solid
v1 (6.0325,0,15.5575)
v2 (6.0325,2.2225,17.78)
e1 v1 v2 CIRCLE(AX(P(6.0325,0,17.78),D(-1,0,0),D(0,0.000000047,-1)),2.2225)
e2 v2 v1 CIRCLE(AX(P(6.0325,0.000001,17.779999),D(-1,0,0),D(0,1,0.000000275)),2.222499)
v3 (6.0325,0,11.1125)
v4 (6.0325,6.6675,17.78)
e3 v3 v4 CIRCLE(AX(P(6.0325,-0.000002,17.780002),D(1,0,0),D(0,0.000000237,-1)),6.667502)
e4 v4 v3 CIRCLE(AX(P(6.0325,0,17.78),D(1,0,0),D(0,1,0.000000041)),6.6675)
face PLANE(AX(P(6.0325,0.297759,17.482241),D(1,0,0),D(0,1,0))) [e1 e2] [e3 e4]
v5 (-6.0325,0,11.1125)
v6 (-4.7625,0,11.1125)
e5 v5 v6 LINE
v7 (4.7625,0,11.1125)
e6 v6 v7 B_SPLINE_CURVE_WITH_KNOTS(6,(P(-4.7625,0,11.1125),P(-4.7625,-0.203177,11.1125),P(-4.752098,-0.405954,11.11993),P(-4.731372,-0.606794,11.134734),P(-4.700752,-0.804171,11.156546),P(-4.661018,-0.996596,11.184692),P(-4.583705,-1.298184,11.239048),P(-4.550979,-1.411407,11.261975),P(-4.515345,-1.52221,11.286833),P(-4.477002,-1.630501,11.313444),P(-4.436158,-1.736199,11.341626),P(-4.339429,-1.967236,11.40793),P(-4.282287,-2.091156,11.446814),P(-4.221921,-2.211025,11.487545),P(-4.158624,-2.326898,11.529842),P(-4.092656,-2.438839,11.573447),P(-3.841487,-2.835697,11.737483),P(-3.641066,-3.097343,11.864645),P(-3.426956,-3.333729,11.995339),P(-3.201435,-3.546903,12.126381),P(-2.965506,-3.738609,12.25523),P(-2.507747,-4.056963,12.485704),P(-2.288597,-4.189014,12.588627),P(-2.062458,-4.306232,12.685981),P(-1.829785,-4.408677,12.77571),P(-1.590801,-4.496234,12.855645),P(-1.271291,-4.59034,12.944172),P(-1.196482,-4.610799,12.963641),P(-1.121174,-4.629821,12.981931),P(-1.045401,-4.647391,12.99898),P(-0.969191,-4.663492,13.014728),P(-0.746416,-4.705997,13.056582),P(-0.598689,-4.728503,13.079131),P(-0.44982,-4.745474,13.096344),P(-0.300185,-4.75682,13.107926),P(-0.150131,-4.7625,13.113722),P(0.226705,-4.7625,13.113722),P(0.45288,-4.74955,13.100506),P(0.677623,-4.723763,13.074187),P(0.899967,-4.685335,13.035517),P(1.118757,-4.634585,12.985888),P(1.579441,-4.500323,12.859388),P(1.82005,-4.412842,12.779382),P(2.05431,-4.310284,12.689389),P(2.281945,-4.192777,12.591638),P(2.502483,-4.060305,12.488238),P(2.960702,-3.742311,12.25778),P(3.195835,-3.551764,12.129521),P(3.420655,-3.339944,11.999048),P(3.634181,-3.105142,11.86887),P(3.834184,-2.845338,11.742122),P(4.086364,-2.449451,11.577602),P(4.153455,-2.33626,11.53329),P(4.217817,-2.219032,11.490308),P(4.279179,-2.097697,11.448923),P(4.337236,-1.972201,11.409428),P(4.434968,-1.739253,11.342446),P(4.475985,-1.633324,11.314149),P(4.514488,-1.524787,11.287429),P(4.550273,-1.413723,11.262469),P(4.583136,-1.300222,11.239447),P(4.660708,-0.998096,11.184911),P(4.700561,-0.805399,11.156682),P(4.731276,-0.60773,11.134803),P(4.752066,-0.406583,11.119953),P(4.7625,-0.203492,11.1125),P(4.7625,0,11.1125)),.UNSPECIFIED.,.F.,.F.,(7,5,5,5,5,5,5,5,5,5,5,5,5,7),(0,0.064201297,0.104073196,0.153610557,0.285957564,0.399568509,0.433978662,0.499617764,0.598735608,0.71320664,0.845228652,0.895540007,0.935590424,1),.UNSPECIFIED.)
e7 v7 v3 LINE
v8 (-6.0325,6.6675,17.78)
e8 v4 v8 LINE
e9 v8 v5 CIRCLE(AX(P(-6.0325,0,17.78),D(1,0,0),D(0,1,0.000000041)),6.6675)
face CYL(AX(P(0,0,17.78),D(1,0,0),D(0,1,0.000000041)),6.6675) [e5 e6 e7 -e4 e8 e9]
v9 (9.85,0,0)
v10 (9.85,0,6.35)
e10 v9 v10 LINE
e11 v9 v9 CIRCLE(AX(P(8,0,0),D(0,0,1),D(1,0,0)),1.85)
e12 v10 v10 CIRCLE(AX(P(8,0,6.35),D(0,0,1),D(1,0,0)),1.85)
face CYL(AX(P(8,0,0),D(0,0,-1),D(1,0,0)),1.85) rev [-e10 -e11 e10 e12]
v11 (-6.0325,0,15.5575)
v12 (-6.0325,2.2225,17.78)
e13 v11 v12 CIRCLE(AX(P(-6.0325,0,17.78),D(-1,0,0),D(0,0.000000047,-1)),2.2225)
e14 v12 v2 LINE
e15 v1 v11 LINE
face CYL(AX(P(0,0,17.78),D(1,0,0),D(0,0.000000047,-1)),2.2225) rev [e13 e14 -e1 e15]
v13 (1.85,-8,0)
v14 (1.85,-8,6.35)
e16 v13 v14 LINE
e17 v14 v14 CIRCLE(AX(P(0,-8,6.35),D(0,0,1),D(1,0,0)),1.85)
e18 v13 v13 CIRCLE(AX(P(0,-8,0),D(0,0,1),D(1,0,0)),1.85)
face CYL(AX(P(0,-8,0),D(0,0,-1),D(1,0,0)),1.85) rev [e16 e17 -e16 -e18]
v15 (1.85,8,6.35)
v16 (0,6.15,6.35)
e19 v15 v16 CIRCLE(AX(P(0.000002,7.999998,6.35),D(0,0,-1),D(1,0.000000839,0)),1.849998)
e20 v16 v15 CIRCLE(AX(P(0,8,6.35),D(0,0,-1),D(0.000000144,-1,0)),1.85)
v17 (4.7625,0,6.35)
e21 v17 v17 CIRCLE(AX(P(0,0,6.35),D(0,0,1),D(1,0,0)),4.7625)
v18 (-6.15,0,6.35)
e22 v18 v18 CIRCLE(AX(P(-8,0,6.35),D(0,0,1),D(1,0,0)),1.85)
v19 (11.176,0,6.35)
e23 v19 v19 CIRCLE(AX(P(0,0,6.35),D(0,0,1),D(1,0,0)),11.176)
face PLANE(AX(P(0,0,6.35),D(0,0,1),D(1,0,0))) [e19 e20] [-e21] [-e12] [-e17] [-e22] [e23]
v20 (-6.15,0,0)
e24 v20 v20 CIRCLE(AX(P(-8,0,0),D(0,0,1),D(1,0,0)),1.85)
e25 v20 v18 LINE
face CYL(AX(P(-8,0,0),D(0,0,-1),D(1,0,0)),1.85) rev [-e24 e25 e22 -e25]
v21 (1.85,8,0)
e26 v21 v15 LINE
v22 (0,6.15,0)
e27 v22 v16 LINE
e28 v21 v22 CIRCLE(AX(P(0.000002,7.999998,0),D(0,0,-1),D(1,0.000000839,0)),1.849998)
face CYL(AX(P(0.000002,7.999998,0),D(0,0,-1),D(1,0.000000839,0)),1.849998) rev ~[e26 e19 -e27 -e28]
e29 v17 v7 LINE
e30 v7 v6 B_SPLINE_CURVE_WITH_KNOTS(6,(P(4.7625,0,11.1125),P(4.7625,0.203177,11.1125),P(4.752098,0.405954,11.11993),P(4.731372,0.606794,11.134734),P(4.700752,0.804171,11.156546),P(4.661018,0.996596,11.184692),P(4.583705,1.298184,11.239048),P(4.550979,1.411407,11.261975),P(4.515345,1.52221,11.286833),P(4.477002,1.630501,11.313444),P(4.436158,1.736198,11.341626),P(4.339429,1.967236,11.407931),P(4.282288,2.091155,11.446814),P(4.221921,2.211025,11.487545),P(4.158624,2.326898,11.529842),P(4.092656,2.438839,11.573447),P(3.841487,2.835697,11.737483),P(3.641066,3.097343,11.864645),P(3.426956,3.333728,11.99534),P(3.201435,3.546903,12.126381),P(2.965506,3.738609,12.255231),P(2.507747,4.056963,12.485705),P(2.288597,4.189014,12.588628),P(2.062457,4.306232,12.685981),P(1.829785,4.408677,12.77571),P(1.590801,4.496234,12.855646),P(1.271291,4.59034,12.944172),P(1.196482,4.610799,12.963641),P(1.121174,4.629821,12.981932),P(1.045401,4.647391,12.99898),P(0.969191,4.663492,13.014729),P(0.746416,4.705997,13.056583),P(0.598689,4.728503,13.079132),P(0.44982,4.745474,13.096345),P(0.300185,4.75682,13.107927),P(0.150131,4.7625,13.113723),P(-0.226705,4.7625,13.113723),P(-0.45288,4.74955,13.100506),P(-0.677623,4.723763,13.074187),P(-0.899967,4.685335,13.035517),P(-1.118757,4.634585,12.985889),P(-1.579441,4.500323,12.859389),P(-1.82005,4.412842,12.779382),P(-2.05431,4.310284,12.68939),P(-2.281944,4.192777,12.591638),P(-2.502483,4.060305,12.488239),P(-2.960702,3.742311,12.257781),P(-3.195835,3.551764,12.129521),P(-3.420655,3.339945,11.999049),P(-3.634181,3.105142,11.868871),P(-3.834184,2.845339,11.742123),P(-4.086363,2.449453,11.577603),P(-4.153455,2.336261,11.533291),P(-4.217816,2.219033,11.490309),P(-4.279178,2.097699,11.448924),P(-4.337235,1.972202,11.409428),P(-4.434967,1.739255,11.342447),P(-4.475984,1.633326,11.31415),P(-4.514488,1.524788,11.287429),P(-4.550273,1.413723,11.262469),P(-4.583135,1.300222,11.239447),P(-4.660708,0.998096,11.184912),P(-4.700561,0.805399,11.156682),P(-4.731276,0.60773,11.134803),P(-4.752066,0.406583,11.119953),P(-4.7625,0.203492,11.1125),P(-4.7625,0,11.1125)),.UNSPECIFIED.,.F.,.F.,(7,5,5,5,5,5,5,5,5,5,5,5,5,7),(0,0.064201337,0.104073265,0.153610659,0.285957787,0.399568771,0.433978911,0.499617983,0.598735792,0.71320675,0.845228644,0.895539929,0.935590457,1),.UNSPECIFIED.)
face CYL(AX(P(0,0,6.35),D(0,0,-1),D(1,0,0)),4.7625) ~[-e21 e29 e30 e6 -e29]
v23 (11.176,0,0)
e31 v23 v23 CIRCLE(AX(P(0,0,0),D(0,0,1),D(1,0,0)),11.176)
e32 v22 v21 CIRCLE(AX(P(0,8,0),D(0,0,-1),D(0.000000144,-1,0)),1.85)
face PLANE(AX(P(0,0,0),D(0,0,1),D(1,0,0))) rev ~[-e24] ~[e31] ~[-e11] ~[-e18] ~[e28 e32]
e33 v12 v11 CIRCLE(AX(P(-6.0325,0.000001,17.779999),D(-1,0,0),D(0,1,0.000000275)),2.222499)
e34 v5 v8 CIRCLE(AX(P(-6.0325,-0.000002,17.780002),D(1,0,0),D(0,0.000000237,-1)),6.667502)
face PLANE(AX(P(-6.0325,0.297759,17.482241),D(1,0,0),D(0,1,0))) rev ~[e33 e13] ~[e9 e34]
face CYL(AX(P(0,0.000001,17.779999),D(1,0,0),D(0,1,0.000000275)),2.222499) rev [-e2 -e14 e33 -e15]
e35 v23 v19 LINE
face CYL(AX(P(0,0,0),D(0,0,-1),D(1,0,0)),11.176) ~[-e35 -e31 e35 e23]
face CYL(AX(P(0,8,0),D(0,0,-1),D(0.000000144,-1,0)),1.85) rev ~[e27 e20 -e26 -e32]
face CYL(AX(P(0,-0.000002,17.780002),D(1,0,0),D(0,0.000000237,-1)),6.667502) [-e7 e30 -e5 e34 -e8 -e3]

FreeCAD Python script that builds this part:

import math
import FreeCAD as App
import Part
import Sketcher
from FreeCAD import Vector
Q = App.Units.Quantity

doc = App.newDocument("Part")
body = doc.addObject("PartDesign::Body", "Body")

sketch1 = body.newObject("Sketcher::SketchObject", "Sketch")
sketch1.AttachmentSupport = (doc.getObject("XY_Plane"), [""])
sketch1.MapMode = "FlatFace"
sketch1.addGeometry(Part.Circle(Vector(0, 0, 0), Vector(0, 0, 1), 11.2), False)
sketch1.addGeometry(Part.Circle(Vector(-8, 0, 0), Vector(0, 0, 1), 1.9), False)
sketch1.addGeometry(Part.Circle(Vector(0, -8, 0), Vector(0, 0, 1), 1.9), False)
sketch1.addGeometry(Part.Circle(Vector(8, 0, 0), Vector(0, 0, 1), 1.9), False)
sketch1.addGeometry(Part.ArcOfCircle(Part.Circle(Vector(0, 8, 0), Vector(0, 0, 1), 1.8), math.radians(-90), math.radians(0)), False)
sketch1.addGeometry(Part.ArcOfCircle(Part.Circle(Vector(0, 8, 0), Vector(0, 0, 1), 1.9), math.radians(0), math.radians(270)), False)
sketch1.addConstraint(Sketcher.Constraint("Tangent", 4, 1, 5, 2))
sketch1.addConstraint(Sketcher.Constraint("Coincident", 5, 1, 4, 2))
sketch1.addConstraint(Sketcher.Constraint("Coincident", 0, 3, -1, 1))
sketch1.addConstraint(Sketcher.Constraint("Equal", 1, 2))
sketch1.addConstraint(Sketcher.Constraint("Equal", 2, 3))
sketch1.addConstraint(Sketcher.Constraint("Equal", 3, 4))
sketch1.addConstraint(Sketcher.Constraint("Symmetric", 1, 3, 3, 3, -1, 1))
sketch1.addConstraint(Sketcher.Constraint("Symmetric", 2, 3, 4, 3, -1, 1))
sketch1.addConstraint(Sketcher.Constraint("PointOnObject", 1, 3, -1))
sketch1.addConstraint(Sketcher.Constraint("PointOnObject", 2, 3, -2))
sketch1.addConstraint(Sketcher.Constraint("PointOnObject", 4, 1, -2))
sketch1.addConstraint(Sketcher.Constraint("Horizontal", 4, 3, 5, 1))
sketch1.addConstraint(Sketcher.Constraint("Diameter", 0, Q("0.88 in")))
sketch1.addConstraint(Sketcher.Constraint("Diameter", 1, 3.7))
sketch1.addConstraint(Sketcher.Constraint("DistanceX", 1, 3, -1, 1, 8.0))
sketch1.addConstraint(Sketcher.Constraint("DistanceY", 2, 3, -1, 1, 8.0))
pad1 = body.newObject("PartDesign::Pad", "Pad")
pad1.Profile = sketch1
pad1.Length = Q("0.25 in")

sketch2 = body.newObject("Sketcher::SketchObject", "Sketch001")
sketch2.AttachmentSupport = (doc.getObject("XY_Plane"), [""])
sketch2.MapMode = "FlatFace"
sketch2.AttachmentOffset = App.Placement(Vector(0, 0, 0.25 * 25.4), App.Rotation())
sketch2.addGeometry(Part.Circle(Vector(0, 0, 0), Vector(0, 0, 1), 4.8), False)
sketch2.addConstraint(Sketcher.Constraint("Coincident", 0, 3, -1, 1))
sketch2.addConstraint(Sketcher.Constraint("Diameter", 0, Q("0.375 in")))
pad2 = body.newObject("PartDesign::Pad", "Pad001")
pad2.Profile = sketch2
pad2.Length = Q("0.325 in")

sketch3 = body.newObject("Sketcher::SketchObject", "Sketch002")
sketch3.AttachmentSupport = (doc.getObject("YZ_Plane"), [""])
sketch3.MapMode = "FlatFace"
sketch3.addGeometry(Part.ArcOfCircle(Part.Circle(Vector(0, 17.8, 0), Vector(0, 0, 1), 6.7), math.radians(0), math.radians(270)), False)
sketch3.addGeometry(Part.ArcOfCircle(Part.Circle(Vector(0, 17.8, 0), Vector(0, 0, 1), 6.7), math.radians(-90), math.radians(0)), False)
sketch3.addGeometry(Part.ArcOfCircle(Part.Circle(Vector(0, 17.8, 0), Vector(0, 0, 1), 2.2), math.radians(0), math.radians(270)), False)
sketch3.addGeometry(Part.ArcOfCircle(Part.Circle(Vector(0, 17.8, 0), Vector(0, 0, 1), 2.2), math.radians(-90), math.radians(0)), False)
sketch3.addConstraint(Sketcher.Constraint("Tangent", 0, 1, 1, 2))
sketch3.addConstraint(Sketcher.Constraint("Coincident", 1, 1, 0, 2))
sketch3.addConstraint(Sketcher.Constraint("Tangent", 2, 1, 3, 2))
sketch3.addConstraint(Sketcher.Constraint("Coincident", 3, 1, 2, 2))
sketch3.addConstraint(Sketcher.Constraint("Coincident", 2, 3, 0, 3))
sketch3.addConstraint(Sketcher.Constraint("PointOnObject", 0, 3, -2))
sketch3.addConstraint(Sketcher.Constraint("PointOnObject", 1, 1, -2))
sketch3.addConstraint(Sketcher.Constraint("PointOnObject", 3, 1, -2))
sketch3.addConstraint(Sketcher.Constraint("Horizontal", 3, 3, 0, 1))
sketch3.addConstraint(Sketcher.Constraint("Horizontal", 0, 1, 2, 1))
sketch3.addConstraint(Sketcher.Constraint("DistanceY", -1, 1, 0, 3, Q("0.7 in")))
sketch3.addConstraint(Sketcher.Constraint("Radius", 0, Q("0.2625 in")))
sketch3.addConstraint(Sketcher.Constraint("Radius", 2, Q("0.0875 in")))
pad3 = body.newObject("PartDesign::Pad", "Pad002")
pad3.Profile = sketch3
pad3.Length = Q("0.475 in")
pad3.Midplane = True

doc.recompute()
